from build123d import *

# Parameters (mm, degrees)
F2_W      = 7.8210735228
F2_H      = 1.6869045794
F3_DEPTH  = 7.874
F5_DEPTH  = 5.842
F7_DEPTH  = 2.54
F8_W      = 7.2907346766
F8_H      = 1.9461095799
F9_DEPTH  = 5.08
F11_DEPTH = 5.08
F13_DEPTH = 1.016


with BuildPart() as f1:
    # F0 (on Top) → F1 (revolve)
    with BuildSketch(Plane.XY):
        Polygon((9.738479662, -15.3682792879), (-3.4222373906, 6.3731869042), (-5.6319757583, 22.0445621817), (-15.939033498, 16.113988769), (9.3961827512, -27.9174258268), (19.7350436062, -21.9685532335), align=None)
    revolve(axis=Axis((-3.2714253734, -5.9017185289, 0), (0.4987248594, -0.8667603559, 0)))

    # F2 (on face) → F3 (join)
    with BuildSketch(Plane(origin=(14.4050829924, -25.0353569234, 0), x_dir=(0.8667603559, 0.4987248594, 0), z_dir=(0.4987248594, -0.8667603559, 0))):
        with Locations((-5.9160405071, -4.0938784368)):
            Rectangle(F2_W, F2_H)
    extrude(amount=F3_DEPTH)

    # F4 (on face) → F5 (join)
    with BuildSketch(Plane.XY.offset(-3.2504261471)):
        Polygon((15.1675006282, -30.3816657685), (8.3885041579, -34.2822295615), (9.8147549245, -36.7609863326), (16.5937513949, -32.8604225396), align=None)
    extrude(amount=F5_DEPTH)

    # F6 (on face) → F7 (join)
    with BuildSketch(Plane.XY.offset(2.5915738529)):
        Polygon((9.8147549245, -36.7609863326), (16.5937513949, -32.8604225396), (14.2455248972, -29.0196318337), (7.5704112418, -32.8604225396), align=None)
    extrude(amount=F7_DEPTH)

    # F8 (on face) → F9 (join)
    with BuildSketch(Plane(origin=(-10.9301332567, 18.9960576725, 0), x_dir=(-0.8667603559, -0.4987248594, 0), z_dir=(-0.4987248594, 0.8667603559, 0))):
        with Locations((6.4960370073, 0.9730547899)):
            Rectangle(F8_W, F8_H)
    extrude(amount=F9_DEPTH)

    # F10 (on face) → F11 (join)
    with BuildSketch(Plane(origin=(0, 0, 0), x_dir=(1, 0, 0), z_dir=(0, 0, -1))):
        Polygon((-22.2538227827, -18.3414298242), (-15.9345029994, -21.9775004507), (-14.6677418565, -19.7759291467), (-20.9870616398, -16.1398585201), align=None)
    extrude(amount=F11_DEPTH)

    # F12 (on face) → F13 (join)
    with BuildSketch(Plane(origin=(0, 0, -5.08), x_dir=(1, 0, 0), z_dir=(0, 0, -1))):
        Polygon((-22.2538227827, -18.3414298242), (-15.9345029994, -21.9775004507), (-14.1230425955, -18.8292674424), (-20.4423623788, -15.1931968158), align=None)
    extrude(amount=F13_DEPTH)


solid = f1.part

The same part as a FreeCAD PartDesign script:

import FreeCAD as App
import Part
import Sketcher
from FreeCAD import Vector
Q = App.Units.Quantity


def add_polygon(sketch, points):
    """Adds a closed chain of lines whose ends are joined by coincident constraints."""
    first, n = sketch.GeometryCount, len(points)
    for a, b in zip(points, points[1:] + points[:1]):
        sketch.addGeometry(Part.LineSegment(App.Vector(*a, 0), App.Vector(*b, 0)), False)
    for i in range(n):
        sketch.addConstraint(Sketcher.Constraint("Coincident", first + i, 2, first + (i + 1) % n, 1))

doc = App.newDocument("Part")
body = doc.addObject("PartDesign::Body", "Body")

# Sketch on XY plane
sketch1 = body.newObject("Sketcher::SketchObject", "Sketch")
sketch1.AttachmentSupport = (doc.getObject("XY_Plane"), [""])
sketch1.MapMode = "FlatFace"
add_polygon(sketch1, [(10, -15), (-3, 6), (-6, 22), (-16, 16), (9, -28), (20, -22)])  # lines 0-5
sketch1.addGeometry(Part.LineSegment(Vector(-16, 16, 0), Vector(9, -28, 0)), True)  # axis
sketch1.addConstraint(Sketcher.Constraint("Coincident", 6, 1, 2, 2))
sketch1.addConstraint(Sketcher.Constraint("Coincident", 6, 2, 3, 2))
sketch1.addConstraint(Sketcher.Constraint("Perpendicular", 2, 3))
sketch1.addConstraint(Sketcher.Constraint("Perpendicular", 3, 4))
sketch1.addConstraint(Sketcher.Constraint("DistanceY", 4, 2, 1, 2, Q("1.7327998 in")))
sketch1.addConstraint(Sketcher.Constraint("Distance", 1, Q("15.8264 mm")))
sketch1.addConstraint(Sketcher.Constraint("DistanceY", 0, 2, 2, 2, Q("9.740802 mm")))
sketch1.addConstraint(Sketcher.Constraint("Distance", 0, Q("25.414481 mm")))
sketch1.addConstraint(Sketcher.Constraint("DistanceY", -1, 1, 2, 2, Q("16.113989 mm")))
sketch1.addConstraint(Sketcher.Constraint("DistanceX", -1, 1, 5, 2, Q("9.73848 mm")))
sketch1.addConstraint(Sketcher.Constraint("DistanceY", 5, 2, -1, 1, Q("15.368279 mm")))
sketch1.addConstraint(Sketcher.Constraint("DistanceX", 1, 2, 0, 2, Q("2.209738 mm")))
sketch1.addConstraint(Sketcher.Constraint("DistanceX", 0, 2, 3, 2, Q("12.81842 mm")))
sketch1.addConstraint(Sketcher.Constraint("DistanceY", 3, 2, 1, 2, Q("49.961988 mm")))
revolution = body.newObject("PartDesign::Revolution", "Revolution")
revolution.Profile = sketch1
revolution.ReferenceAxis = (sketch1, ["Axis0"])
revolution.Angle = 360

# Sketch on an angled plane
sketch2 = body.newObject("Sketcher::SketchObject", "Sketch001")
sketch2.Placement = App.Placement(Vector(14.405083, -25.035357, 0), App.Rotation(Vector(0.866760356, 0.498724859, 0), Vector(0, 0, 1), Vector(0.498724859, -0.866760356, 0), "ZXY"))
add_polygon(sketch2, [(-9.8, -3.3), (-9.8, -4.9), (-2, -4.9), (-2, -3.3)])  # lines 0-3
sketch2.addConstraint(Sketcher.Constraint("Vertical", 0))
sketch2.addConstraint(Sketcher.Constraint("Horizontal", 1))
sketch2.addConstraint(Sketcher.Constraint("Vertical", 2))
sketch2.addConstraint(Sketcher.Constraint("Horizontal", 3))
sketch2.addConstraint(Sketcher.Constraint("DistanceX", 1, 1, 1, 2, Q("7.821074 mm")))
sketch2.addConstraint(Sketcher.Constraint("DistanceY", 0, 2, 0, 1, Q("1.686905 mm")))
sketch2.addConstraint(Sketcher.Constraint("DistanceY", 0, 2, -1, 1, Q("4.937331 mm")))
sketch2.addConstraint(Sketcher.Constraint("DistanceX", 0, 2, -1, 1, Q("9.826577 mm")))
pad1 = body.newObject("PartDesign::Pad", "Pad")
pad1.Profile = sketch2
pad1.Length = Q("0.31 in")

# Sketch on XY plane
sketch3 = body.newObject("Sketcher::SketchObject", "Sketch002")
sketch3.AttachmentSupport = (doc.getObject("XY_Plane"), [""])
sketch3.MapMode = "FlatFace"
sketch3.AttachmentOffset = App.Placement(Vector(0, 0, -3.250426), App.Rotation())
add_polygon(sketch3, [(15.2, -30.4), (8.4, -34.3), (9.8, -36.8), (16.6, -32.9)])  # lines 0-3
sketch3.addConstraint(Sketcher.Constraint("Perpendicular", 0, 1))
sketch3.addConstraint(Sketcher.Constraint("Perpendicular", 1, 2))
sketch3.addConstraint(Sketcher.Constraint("Perpendicular", 2, 3))
sketch3.addConstraint(Sketcher.Constraint("DistanceX", -1, 1, 3, 2, Q("15.167501 mm")))
sketch3.addConstraint(Sketcher.Constraint("DistanceY", 0, 2, -1, 1, Q("34.28223 mm")))
sketch3.addConstraint(Sketcher.Constraint("DistanceX", -1, 1, 2, 2, Q("16.593751 mm")))
sketch3.addConstraint(Sketcher.Constraint("DistanceY", 1, 2, 3, 2, Q("6.379321 mm")))
sketch3.addConstraint(Sketcher.Constraint("Distance", 0, Q("7.821074 mm")))
pad2 = body.newObject("PartDesign::Pad", "Pad001")
pad2.Profile = sketch3
pad2.Length = Q("0.23 in")

# Sketch on XY plane
sketch4 = body.newObject("Sketcher::SketchObject", "Sketch003")
sketch4.AttachmentSupport = (doc.getObject("XY_Plane"), [""])
sketch4.MapMode = "FlatFace"
sketch4.AttachmentOffset = App.Placement(Vector(0, 0, 2.591574), App.Rotation())
add_polygon(sketch4, [(9.8, -36.8), (16.6, -32.9), (14.2, -29), (7.6, -32.9)])  # lines 0-3
sketch4.addConstraint(Sketcher.Constraint("Parallel", 0, 2))
sketch4.addConstraint(Sketcher.Constraint("Perpendicular", 2, 3))
sketch4.addConstraint(Sketcher.Constraint("Horizontal", 0, 2, 2, 2))
sketch4.addConstraint(Sketcher.Constraint("Distance", 1, Q("4.50176 mm")))
sketch4.addConstraint(Sketcher.Constraint("Distance", 2, Q("7.701222 mm")))
sketch4.addConstraint(Sketcher.Constraint("DistanceX", -1, 1, 0, 2, Q("16.593751 mm")))
sketch4.addConstraint(Sketcher.Constraint("DistanceY", 1, 2, -1, 1, Q("29.019632 mm")))
sketch4.addConstraint(Sketcher.Constraint("DistanceX", -1, 1, 2, 2, Q("7.570411 mm")))
pad3 = body.newObject("PartDesign::Pad", "Pad002")
pad3.Profile = sketch4
pad3.Length = Q("0.1 in")

# Sketch on an angled plane
sketch5 = body.newObject("Sketcher::SketchObject", "Sketch004")
sketch5.Placement = App.Placement(Vector(-10.930133, 18.996058, 0), App.Rotation(Vector(-0.866760356, -0.498724859, 0), Vector(0, 0, 1), Vector(-0.498724859, 0.866760356, 0), "ZXY"))
add_polygon(sketch5, [(2.9, 1.9), (2.9, 0), (10.1, 0), (10.1, 1.9)])  # lines 0-3
sketch5.addConstraint(Sketcher.Constraint("Vertical", 0))
sketch5.addConstraint(Sketcher.Constraint("Horizontal", 1))
sketch5.addConstraint(Sketcher.Constraint("Vertical", 2))
sketch5.addConstraint(Sketcher.Constraint("Horizontal", 3))
sketch5.addConstraint(Sketcher.Constraint("PointOnObject", 0, 2, -1))
sketch5.addConstraint(Sketcher.Constraint("DistanceY", 0, 2, 0, 1, Q("1.94611 mm")))
sketch5.addConstraint(Sketcher.Constraint("DistanceX", 1, 1, 1, 2, Q("7.290735 mm")))
sketch5.addConstraint(Sketcher.Constraint("DistanceX", -1, 1, 0, 2, Q("2.85067 mm")))
pad4 = body.newObject("PartDesign::Pad", "Pad003")
pad4.Profile = sketch5
pad4.Length = Q("0.2 in")

# Sketch on XY plane
sketch6 = body.newObject("Sketcher::SketchObject", "Sketch005")
sketch6.AttachmentSupport = (doc.getObject("XY_Plane"), [""])
sketch6.MapMode = "FlatFace"
add_polygon(sketch6, [(-22.3, 18.3), (-15.9, 22), (-14.7, 19.8), (-21, 16.1)])  # lines 0-3
sketch6.addConstraint(Sketcher.Constraint("Perpendicular", 0, 1))
sketch6.addConstraint(Sketcher.Constraint("Perpendicular", 1, 2))
sketch6.addConstraint(Sketcher.Constraint("Perpendicular", 2, 3))
sketch6.addConstraint(Sketcher.Constraint("Distance", 1, Q("0.1 in")))
sketch6.addConstraint(Sketcher.Constraint("DistanceY", -1, 1, 0, 2, Q("21.9775 mm")))
sketch6.addConstraint(Sketcher.Constraint("DistanceY", 3, 2, 1, 2, Q("1.434499 mm")))
sketch6.addConstraint(Sketcher.Constraint("DistanceX", 1, 2, -1, 1, Q("14.667742 mm")))
sketch6.addConstraint(Sketcher.Constraint("DistanceY", -1, 1, 1, 2, Q("19.775929 mm")))
pad5 = body.newObject("PartDesign::Pad", "Pad004")
pad5.Profile = sketch6
pad5.Length = Q("0.2 in")
pad5.Reversed = True

# Sketch on XY plane
sketch7 = body.newObject("Sketcher::SketchObject", "Sketch006")
sketch7.AttachmentSupport = (doc.getObject("XY_Plane"), [""])
sketch7.MapMode = "FlatFace"
sketch7.AttachmentOffset = App.Placement(Vector(0, 0, -0.2 * 25.4), App.Rotation())
add_polygon(sketch7, [(-22.3, 18.3), (-15.9, 22), (-14.1, 18.8), (-20.4, 15.2)])  # lines 0-3
sketch7.addConstraint(Sketcher.Constraint("Perpendicular", 0, 1))
sketch7.addConstraint(Sketcher.Constraint("Perpendicular", 1, 2))
sketch7.addConstraint(Sketcher.Constraint("Perpendicular", 2, 3))
sketch7.addConstraint(Sketcher.Constraint("DistanceY", -1, 1, 0, 2, Q("21.9775 mm")))
sketch7.addConstraint(Sketcher.Constraint("DistanceY", -1, 1, 3, 2, Q("18.34143 mm")))
sketch7.addConstraint(Sketcher.Constraint("DistanceX", 0, 2, 1, 2, Q("1.81146 mm")))
sketch7.addConstraint(Sketcher.Constraint("DistanceX", 2, 2, 1, 2, Q("6.31932 mm")))
sketch7.addConstraint(Sketcher.Constraint("DistanceX", 0, 2, -1, 1, Q("15.934503 mm")))
pad6 = body.newObject("PartDesign::Pad", "Pad005")
pad6.Profile = sketch7
pad6.Length = Q("0.04 in")
pad6.Reversed = True

doc.recompute()
